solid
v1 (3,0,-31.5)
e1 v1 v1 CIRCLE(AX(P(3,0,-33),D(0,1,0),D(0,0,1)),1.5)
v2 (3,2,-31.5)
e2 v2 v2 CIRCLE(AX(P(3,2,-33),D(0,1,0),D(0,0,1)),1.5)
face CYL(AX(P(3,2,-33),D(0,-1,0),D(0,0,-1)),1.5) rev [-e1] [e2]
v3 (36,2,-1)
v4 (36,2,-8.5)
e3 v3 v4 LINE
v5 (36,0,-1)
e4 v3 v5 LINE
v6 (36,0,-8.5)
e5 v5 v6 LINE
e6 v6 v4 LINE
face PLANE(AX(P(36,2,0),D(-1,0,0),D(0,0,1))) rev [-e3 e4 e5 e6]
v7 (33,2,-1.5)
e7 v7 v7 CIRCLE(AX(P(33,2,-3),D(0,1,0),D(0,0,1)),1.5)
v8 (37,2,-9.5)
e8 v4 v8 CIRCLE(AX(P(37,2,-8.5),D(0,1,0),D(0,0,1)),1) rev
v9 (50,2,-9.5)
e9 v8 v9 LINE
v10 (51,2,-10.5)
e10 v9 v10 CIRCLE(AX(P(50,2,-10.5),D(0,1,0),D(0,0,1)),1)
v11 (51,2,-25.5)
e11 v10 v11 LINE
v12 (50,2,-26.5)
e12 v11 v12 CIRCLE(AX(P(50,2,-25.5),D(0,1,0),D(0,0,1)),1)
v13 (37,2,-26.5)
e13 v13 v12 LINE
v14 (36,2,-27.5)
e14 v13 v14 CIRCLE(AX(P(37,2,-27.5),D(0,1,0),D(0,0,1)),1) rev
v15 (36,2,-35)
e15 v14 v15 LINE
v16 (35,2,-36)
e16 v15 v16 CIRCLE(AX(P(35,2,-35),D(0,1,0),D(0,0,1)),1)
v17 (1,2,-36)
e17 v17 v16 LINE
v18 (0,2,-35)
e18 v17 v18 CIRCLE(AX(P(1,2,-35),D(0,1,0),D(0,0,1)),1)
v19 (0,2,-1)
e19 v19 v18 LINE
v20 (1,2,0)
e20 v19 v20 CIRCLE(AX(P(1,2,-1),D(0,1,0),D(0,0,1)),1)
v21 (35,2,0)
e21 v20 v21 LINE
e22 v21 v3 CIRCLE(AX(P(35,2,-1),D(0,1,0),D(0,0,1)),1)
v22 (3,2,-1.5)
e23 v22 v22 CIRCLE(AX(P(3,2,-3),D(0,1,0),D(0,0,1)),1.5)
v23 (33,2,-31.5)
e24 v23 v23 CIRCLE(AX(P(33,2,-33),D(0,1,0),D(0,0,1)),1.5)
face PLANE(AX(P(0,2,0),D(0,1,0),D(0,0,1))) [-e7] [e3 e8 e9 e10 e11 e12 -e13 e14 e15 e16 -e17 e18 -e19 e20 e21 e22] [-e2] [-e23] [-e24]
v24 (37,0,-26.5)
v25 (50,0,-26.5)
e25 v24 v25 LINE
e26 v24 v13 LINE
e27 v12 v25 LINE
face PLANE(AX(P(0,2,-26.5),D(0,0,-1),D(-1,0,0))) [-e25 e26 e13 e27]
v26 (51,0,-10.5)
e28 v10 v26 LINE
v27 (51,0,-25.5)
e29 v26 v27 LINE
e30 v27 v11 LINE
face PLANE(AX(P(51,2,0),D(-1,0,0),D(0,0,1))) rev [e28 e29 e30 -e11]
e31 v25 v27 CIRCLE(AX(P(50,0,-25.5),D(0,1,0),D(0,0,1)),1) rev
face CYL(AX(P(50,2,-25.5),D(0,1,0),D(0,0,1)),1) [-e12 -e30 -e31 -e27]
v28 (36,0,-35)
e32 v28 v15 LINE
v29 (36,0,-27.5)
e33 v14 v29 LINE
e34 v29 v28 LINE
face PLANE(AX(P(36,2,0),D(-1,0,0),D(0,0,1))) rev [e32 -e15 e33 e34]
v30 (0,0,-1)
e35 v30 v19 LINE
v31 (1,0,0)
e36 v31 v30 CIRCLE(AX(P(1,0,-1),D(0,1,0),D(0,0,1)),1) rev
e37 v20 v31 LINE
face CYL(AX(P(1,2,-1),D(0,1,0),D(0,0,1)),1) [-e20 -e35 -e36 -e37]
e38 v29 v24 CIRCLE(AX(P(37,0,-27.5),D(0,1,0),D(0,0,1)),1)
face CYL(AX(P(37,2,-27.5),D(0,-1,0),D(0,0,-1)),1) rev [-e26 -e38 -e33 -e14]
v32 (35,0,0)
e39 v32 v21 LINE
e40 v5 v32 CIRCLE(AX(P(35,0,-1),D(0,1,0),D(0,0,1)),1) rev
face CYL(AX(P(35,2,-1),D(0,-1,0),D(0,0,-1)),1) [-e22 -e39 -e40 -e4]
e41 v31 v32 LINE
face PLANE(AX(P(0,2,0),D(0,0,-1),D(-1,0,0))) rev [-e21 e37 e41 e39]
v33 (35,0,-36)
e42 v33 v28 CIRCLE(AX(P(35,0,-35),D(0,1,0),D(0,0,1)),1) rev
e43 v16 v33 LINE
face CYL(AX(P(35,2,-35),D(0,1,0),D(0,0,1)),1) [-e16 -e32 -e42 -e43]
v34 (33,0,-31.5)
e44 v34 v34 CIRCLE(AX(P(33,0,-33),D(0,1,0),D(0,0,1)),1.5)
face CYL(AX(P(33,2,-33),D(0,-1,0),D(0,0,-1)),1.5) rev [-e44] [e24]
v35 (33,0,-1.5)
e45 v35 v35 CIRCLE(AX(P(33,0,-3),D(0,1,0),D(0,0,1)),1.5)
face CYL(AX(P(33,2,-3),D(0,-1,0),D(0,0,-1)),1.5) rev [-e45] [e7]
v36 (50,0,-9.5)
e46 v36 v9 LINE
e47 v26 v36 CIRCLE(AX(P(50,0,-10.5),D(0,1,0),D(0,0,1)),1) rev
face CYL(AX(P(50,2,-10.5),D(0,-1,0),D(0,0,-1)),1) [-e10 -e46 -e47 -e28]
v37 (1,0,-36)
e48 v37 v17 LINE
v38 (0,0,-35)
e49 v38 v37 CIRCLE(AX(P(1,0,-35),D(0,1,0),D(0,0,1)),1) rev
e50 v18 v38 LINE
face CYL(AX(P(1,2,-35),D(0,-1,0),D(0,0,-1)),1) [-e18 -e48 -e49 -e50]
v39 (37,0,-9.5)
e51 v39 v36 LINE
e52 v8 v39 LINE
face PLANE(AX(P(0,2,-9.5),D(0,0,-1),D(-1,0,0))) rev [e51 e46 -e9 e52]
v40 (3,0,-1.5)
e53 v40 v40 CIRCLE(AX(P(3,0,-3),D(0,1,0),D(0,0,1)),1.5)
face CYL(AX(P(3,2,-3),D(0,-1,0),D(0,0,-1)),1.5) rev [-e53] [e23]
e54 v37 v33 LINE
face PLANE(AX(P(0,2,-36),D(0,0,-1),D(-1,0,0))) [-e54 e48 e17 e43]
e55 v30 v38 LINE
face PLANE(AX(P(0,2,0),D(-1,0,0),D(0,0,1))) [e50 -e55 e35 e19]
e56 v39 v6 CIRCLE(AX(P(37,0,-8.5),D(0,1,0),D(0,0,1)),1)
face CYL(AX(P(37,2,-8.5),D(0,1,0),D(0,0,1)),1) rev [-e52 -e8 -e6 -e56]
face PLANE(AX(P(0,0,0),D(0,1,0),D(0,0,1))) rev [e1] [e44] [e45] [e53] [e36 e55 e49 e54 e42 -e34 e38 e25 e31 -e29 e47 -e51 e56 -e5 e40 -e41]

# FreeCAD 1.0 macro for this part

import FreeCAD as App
import Part
import Sketcher

V = App.Vector
Q = App.Units.Quantity


def edges_at(feature, points):
    """Names of the edges that pass closest to the given points."""
    edges = feature.Shape.Edges
    near = lambda p: min(range(len(edges)), key=lambda i: edges[i].distToShape(Part.Vertex(*p))[0])
    return sorted({f"Edge{near(p) + 1}" for p in points})

doc = App.newDocument("Part")
body = doc.addObject("PartDesign::Body", "Body")

sketch1 = doc.addObject("Sketcher::SketchObject", "Sketch")
body.addObject(sketch1)
sketch1.AttachmentSupport = (doc.XZ_Plane, [""])
sketch1.MapMode = "FlatFace"
sketch1.addGeometry([
    Part.LineSegment(V(0, -36, 0), V(0, 0, 0)),
    Part.LineSegment(V(0, 0, 0), V(36, 0, 0)),
    Part.LineSegment(V(36, 0, 0), V(36, -9.5, 0)),
    Part.LineSegment(V(36, -9.5, 0), V(51, -9.5, 0)),
    Part.LineSegment(V(51, -9.5, 0), V(51, -26.5, 0)),
    Part.LineSegment(V(51, -26.5, 0), V(36, -26.5, 0)),
    Part.LineSegment(V(36, -26.5, 0), V(36, -36, 0)),
    Part.LineSegment(V(36, -36, 0), V(0, -36, 0)),
    Part.Circle(V(3, -3, 0), V(0, 0, 1), 1.5),
    Part.Circle(V(33, -3, 0), V(0, 0, 1), 1.5),
    Part.Circle(V(3, -33, 0), V(0, 0, 1), 1.5),
    Part.Circle(V(33, -33, 0), V(0, 0, 1), 1.5),
], False)
sketch1.addConstraint([
    Sketcher.Constraint("Coincident", 0, 2, 1, 1),
    Sketcher.Constraint("Coincident", 1, 2, 2, 1),
    Sketcher.Constraint("Coincident", 2, 2, 3, 1),
    Sketcher.Constraint("Coincident", 3, 2, 4, 1),
    Sketcher.Constraint("Coincident", 4, 2, 5, 1),
    Sketcher.Constraint("Coincident", 5, 2, 6, 1),
    Sketcher.Constraint("Coincident", 6, 2, 7, 1),
    Sketcher.Constraint("Coincident", 7, 2, 0, 1),
    Sketcher.Constraint("Vertical", 0),
    Sketcher.Constraint("Horizontal", 1),
    Sketcher.Constraint("Vertical", 2),
    Sketcher.Constraint("Horizontal", 3),
    Sketcher.Constraint("Vertical", 4),
    Sketcher.Constraint("Horizontal", 5),
    Sketcher.Constraint("Vertical", 6),
    Sketcher.Constraint("Horizontal", 7),
    Sketcher.Constraint("Coincident", 0, 2, -1, 1),
    Sketcher.Constraint("Equal", 8, 9),
    Sketcher.Constraint("Equal", 9, 10),
    Sketcher.Constraint("Equal", 10, 11),
    Sketcher.Constraint("Horizontal", 8, 3, 9, 3),
    Sketcher.Constraint("Horizontal", 10, 3, 11, 3),
    Sketcher.Constraint("Vertical", 8, 3, 10, 3),
    Sketcher.Constraint("Vertical", 9, 3, 11, 3),
    Sketcher.Constraint("Vertical", 2, 2, 5, 2),
    Sketcher.Constraint("Equal", 7, 0),
    Sketcher.Constraint("Equal", 2, 6),
    Sketcher.Constraint("Diameter", 8, Q("3 mm")),
    Sketcher.Constraint("DistanceX", 1, 1, 1, 2, Q("36 mm")),
    Sketcher.Constraint("DistanceX", 3, 1, 3, 2, Q("15 mm")),
    Sketcher.Constraint("DistanceY", 4, 2, 4, 1, Q("17 mm")),
    Sketcher.Constraint("DistanceX", -1, 1, 8, 3, Q("3 mm")),
    Sketcher.Constraint("DistanceY", 8, 3, -1, 1, Q("3 mm")),
    Sketcher.Constraint("DistanceX", -1, 1, 9, 3, Q("33 mm")),
    Sketcher.Constraint("DistanceY", 10, 3, -1, 1, Q("33 mm")),
])
pad1 = doc.addObject("PartDesign::Pad", "Pad")
body.addObject(pad1)
pad1.Profile = sketch1
pad1.Length = 2
pad1.Reversed = True
doc.recompute()

fillet = doc.addObject("PartDesign::Fillet", "Fillet")
body.addObject(fillet)
fillet.Base = (pad1, edges_at(pad1, [
    (0, 1, 0),
    (0, 1, -36),
    (36, 1, -36),
    (36, 1, -26.5),
    (51, 1, -26.5),
    (51, 1, -9.5),
    (36, 1, -9.5),
    (36, 1, 0),
]))
fillet.Radius = 1

doc.recompute()
